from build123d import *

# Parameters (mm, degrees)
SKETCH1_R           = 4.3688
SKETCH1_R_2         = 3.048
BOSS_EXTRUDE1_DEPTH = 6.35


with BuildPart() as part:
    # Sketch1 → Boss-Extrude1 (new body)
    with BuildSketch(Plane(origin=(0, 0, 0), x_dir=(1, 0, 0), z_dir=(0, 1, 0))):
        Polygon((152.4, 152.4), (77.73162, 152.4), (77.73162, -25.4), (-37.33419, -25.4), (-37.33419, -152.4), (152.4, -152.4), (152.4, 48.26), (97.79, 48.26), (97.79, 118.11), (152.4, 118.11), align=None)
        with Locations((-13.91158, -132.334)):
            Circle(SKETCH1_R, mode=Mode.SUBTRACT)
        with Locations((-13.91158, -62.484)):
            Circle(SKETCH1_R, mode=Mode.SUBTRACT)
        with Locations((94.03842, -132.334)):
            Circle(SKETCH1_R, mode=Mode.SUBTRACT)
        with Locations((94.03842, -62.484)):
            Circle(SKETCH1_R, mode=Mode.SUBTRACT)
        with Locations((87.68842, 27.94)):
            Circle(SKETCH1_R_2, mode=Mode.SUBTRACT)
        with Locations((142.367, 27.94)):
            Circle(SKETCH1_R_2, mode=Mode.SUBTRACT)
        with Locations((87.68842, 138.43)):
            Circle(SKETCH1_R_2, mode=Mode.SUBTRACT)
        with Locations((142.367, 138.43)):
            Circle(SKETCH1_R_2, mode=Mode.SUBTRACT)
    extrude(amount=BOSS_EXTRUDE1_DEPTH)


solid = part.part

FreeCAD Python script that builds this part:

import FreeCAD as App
import Part
import Sketcher
from FreeCAD import Vector
Q = App.Units.Quantity

doc = App.newDocument("Part")
body = doc.addObject("PartDesign::Body", "Body")

sketch1 = doc.addObject("Sketcher::SketchObject", "Sketch")
body.addObject(sketch1)
sketch1.AttachmentSupport = (doc.XZ_Plane, [""])
sketch1.MapMode = "FlatFace"
sketch1.addGeometry(Part.LineSegment(Vector(152.4, -152.4, 0), Vector(77.7, -152.4, 0)), False)
sketch1.addGeometry(Part.LineSegment(Vector(77.7, -152.4, 0), Vector(77.7, 25.4, 0)), False)
sketch1.addGeometry(Part.LineSegment(Vector(77.7, 25.4, 0), Vector(-37.3, 25.4, 0)), False)
sketch1.addGeometry(Part.LineSegment(Vector(-37.3, 25.4, 0), Vector(-37.3, 152.4, 0)), False)
sketch1.addGeometry(Part.LineSegment(Vector(-37.3, 152.4, 0), Vector(152.4, 152.4, 0)), False)
sketch1.addGeometry(Part.LineSegment(Vector(152.4, 152.4, 0), Vector(152.4, -48.3, 0)), False)
sketch1.addGeometry(Part.LineSegment(Vector(152.4, -48.3, 0), Vector(97.8, -48.3, 0)), False)
sketch1.addGeometry(Part.LineSegment(Vector(97.8, -48.3, 0), Vector(97.8, -118.1, 0)), False)
sketch1.addGeometry(Part.LineSegment(Vector(97.8, -118.1, 0), Vector(152.4, -118.1, 0)), False)
sketch1.addGeometry(Part.LineSegment(Vector(152.4, -118.1, 0), Vector(152.4, -152.4, 0)), False)
sketch1.addGeometry(Part.Circle(Vector(-13.9, 132.3, 0), Vector(0, 0, 1), 4.4), False)
sketch1.addGeometry(Part.Circle(Vector(-13.9, 62.5, 0), Vector(0, 0, 1), 4.4), False)
sketch1.addGeometry(Part.Circle(Vector(94, 132.3, 0), Vector(0, 0, 1), 4.4), False)
sketch1.addGeometry(Part.Circle(Vector(94, 62.5, 0), Vector(0, 0, 1), 4.4), False)
sketch1.addGeometry(Part.Circle(Vector(87.7, -27.9, 0), Vector(0, 0, 1), 3), False)
sketch1.addGeometry(Part.Circle(Vector(142.4, -27.9, 0), Vector(0, 0, 1), 3), False)
sketch1.addGeometry(Part.Circle(Vector(87.7, -138.4, 0), Vector(0, 0, 1), 3), False)
sketch1.addGeometry(Part.Circle(Vector(142.4, -138.4, 0), Vector(0, 0, 1), 3), False)
sketch1.addConstraint(Sketcher.Constraint("Coincident", 0, 2, 1, 1))
sketch1.addConstraint(Sketcher.Constraint("Coincident", 1, 2, 2, 1))
sketch1.addConstraint(Sketcher.Constraint("Coincident", 2, 2, 3, 1))
sketch1.addConstraint(Sketcher.Constraint("Coincident", 3, 2, 4, 1))
sketch1.addConstraint(Sketcher.Constraint("Coincident", 4, 2, 5, 1))
sketch1.addConstraint(Sketcher.Constraint("Coincident", 5, 2, 6, 1))
sketch1.addConstraint(Sketcher.Constraint("Coincident", 6, 2, 7, 1))
sketch1.addConstraint(Sketcher.Constraint("Coincident", 7, 2, 8, 1))
sketch1.addConstraint(Sketcher.Constraint("Coincident", 8, 2, 9, 1))
sketch1.addConstraint(Sketcher.Constraint("Coincident", 9, 2, 0, 1))
sketch1.addConstraint(Sketcher.Constraint("Horizontal", 0))
sketch1.addConstraint(Sketcher.Constraint("Vertical", 1))
sketch1.addConstraint(Sketcher.Constraint("Horizontal", 2))
sketch1.addConstraint(Sketcher.Constraint("Vertical", 3))
sketch1.addConstraint(Sketcher.Constraint("Horizontal", 4))
sketch1.addConstraint(Sketcher.Constraint("Vertical", 5))
sketch1.addConstraint(Sketcher.Constraint("Horizontal", 6))
sketch1.addConstraint(Sketcher.Constraint("Vertical", 7))
sketch1.addConstraint(Sketcher.Constraint("Horizontal", 8))
sketch1.addConstraint(Sketcher.Constraint("Vertical", 9))
sketch1.addConstraint(Sketcher.Constraint("Equal", 10, 11))
sketch1.addConstraint(Sketcher.Constraint("Equal", 11, 12))
sketch1.addConstraint(Sketcher.Constraint("Equal", 12, 13))
sketch1.addConstraint(Sketcher.Constraint("Equal", 14, 15))
sketch1.addConstraint(Sketcher.Constraint("Equal", 15, 16))
sketch1.addConstraint(Sketcher.Constraint("Equal", 16, 17))
sketch1.addConstraint(Sketcher.Constraint("Symmetric", 4, 2, 9, 2, -1))
sketch1.addConstraint(Sketcher.Constraint("Horizontal", 10, 3, 12, 3))
sketch1.addConstraint(Sketcher.Constraint("Horizontal", 11, 3, 13, 3))
sketch1.addConstraint(Sketcher.Constraint("Horizontal", 14, 3, 15, 3))
sketch1.addConstraint(Sketcher.Constraint("Horizontal", 16, 3, 17, 3))
sketch1.addConstraint(Sketcher.Constraint("Vertical", 10, 3, 11, 3))
sketch1.addConstraint(Sketcher.Constraint("Vertical", 12, 3, 13, 3))
sketch1.addConstraint(Sketcher.Constraint("Vertical", 14, 3, 16, 3))
sketch1.addConstraint(Sketcher.Constraint("Vertical", 15, 3, 17, 3))
sketch1.addConstraint(Sketcher.Constraint("Diameter", 14, Q("0.24 in")))
sketch1.addConstraint(Sketcher.Constraint("DistanceY", 1, 1, 1, 2, Q("7 in")))
sketch1.addConstraint(Sketcher.Constraint("DistanceY", 3, 1, 3, 2, Q("5 in")))
sketch1.addConstraint(Sketcher.Constraint("Diameter", 10, Q("0.344 in")))
sketch1.addConstraint(Sketcher.Constraint("DistanceY", 5, 2, 5, 1, Q("7.9 in")))
sketch1.addConstraint(Sketcher.Constraint("DistanceX", -1, 1, 4, 2, Q("6 in")))
sketch1.addConstraint(Sketcher.Constraint("DistanceX", 11, 3, 14, 3, Q("4 in")))
sketch1.addConstraint(Sketcher.Constraint("DistanceX", 6, 2, 6, 1, Q("2.15 in")))
sketch1.addConstraint(Sketcher.Constraint("DistanceY", 7, 2, 7, 1, Q("2.75 in")))
sketch1.addConstraint(Sketcher.Constraint("DistanceY", 14, 3, -1, 1, Q("1.1 in")))
sketch1.addConstraint(Sketcher.Constraint("DistanceY", 16, 3, 7, 2, Q("0.8 in")))
sketch1.addConstraint(Sketcher.Constraint("DistanceY", -1, 1, 10, 3, Q("5.21 in")))
sketch1.addConstraint(Sketcher.Constraint("DistanceY", -1, 1, 11, 3, Q("2.46 in")))
sketch1.addConstraint(Sketcher.Constraint("DistanceX", 10, 3, 12, 3, Q("4.25 in")))
sketch1.addConstraint(Sketcher.Constraint("DistanceX", 0, 2, 0, 1, Q("2.9397 in")))
sketch1.addConstraint(Sketcher.Constraint("DistanceX", -1, 1, 15, 3, Q("5.605 in")))
sketch1.addConstraint(Sketcher.Constraint("DistanceX", 0, 2, 16, 3, Q("0.392 in")))
sketch1.addConstraint(Sketcher.Constraint("DistanceX", 2, 2, 2, 1, Q("115.06581 mm")))
pad1 = doc.addObject("PartDesign::Pad", "Pad")
body.addObject(pad1)
pad1.Profile = sketch1
pad1.Length = Q("0.25 in")
pad1.Reversed = True

doc.recompute()
